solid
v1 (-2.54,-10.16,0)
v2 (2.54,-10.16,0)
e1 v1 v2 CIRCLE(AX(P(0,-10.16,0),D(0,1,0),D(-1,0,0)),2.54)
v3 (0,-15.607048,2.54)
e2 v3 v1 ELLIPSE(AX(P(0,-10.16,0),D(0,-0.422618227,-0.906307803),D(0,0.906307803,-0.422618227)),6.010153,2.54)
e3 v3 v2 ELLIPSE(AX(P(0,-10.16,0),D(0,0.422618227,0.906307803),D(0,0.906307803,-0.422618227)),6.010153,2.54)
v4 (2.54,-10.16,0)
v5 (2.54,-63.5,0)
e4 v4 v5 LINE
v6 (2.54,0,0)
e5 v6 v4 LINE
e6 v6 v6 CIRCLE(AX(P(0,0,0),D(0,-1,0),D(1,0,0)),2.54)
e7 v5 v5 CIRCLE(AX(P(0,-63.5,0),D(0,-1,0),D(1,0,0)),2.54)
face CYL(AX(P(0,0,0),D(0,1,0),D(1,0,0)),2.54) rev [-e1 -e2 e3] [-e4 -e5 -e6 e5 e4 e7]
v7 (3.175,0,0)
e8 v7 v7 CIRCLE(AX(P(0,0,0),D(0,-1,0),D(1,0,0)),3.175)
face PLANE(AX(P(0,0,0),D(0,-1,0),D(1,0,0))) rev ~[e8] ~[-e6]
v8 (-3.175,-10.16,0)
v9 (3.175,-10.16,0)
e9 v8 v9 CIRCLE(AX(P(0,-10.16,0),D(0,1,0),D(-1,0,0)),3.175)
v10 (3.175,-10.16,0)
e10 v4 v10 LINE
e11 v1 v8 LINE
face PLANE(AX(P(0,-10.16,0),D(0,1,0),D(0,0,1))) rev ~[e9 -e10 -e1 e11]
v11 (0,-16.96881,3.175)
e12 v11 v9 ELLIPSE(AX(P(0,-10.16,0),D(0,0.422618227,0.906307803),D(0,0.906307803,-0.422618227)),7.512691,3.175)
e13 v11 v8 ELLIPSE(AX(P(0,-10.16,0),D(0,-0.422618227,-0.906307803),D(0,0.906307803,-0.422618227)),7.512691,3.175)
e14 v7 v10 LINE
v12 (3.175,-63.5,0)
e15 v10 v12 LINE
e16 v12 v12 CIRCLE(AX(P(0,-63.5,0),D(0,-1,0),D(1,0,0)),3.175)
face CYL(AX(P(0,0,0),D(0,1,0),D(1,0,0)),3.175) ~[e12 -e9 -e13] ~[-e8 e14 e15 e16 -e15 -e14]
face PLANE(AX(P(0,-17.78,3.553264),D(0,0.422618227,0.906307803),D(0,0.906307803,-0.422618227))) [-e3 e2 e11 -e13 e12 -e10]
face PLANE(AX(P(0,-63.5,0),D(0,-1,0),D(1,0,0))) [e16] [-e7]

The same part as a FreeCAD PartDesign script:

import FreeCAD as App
import Part
import Sketcher
Q = App.Units.Quantity

doc = App.newDocument("Part")
body = doc.addObject("PartDesign::Body", "Body")

# Sketch on XZ plane
sketch1 = body.newObject("Sketcher::SketchObject", "Sketch")
sketch1.AttachmentSupport = (doc.getObject("XZ_Plane"), [""])
sketch1.MapMode = "FlatFace"
sketch1.addGeometry([
    Part.Circle(App.Vector(0, 0, 0), App.Vector(0, 0, 1), 3.2),
    Part.Circle(App.Vector(0, 0, 0), App.Vector(0, 0, 1), 2.5),
], False)
sketch1.addConstraint([
    Sketcher.Constraint("Coincident", 0, 3, -1, 1),
    Sketcher.Constraint("Coincident", 1, 3, -1, 1),
    Sketcher.Constraint("Diameter", 1, Q("0.2 in")),
    Sketcher.Constraint("Diameter", 0, Q("0.25 in")),
])
pad1 = body.newObject("PartDesign::Pad", "Pad")
pad1.Profile = sketch1
pad1.Length = Q("2.5 in")

# Sketch on YZ plane
sketch2 = body.newObject("Sketcher::SketchObject", "Sketch001")
sketch2.AttachmentSupport = (doc.getObject("YZ_Plane"), [""])
sketch2.MapMode = "FlatFace"
sketch2.addGeometry([
    Part.LineSegment(App.Vector(-17.8, 3.6, 0), App.Vector(-10.2, 0, 0)),
    Part.LineSegment(App.Vector(-10.2, 0, 0), App.Vector(-10.2, 3.6, 0)),
    Part.LineSegment(App.Vector(-10.2, 3.6, 0), App.Vector(-17.8, 3.6, 0)),
], False)
sketch2.addConstraint([
    Sketcher.Constraint("Coincident", 0, 2, 1, 1),
    Sketcher.Constraint("Coincident", 1, 2, 2, 1),
    Sketcher.Constraint("Coincident", 2, 2, 0, 1),
    Sketcher.Constraint("Vertical", 1),
    Sketcher.Constraint("Horizontal", 2),
    Sketcher.Constraint("PointOnObject", 0, 2, -1),
    Sketcher.Constraint("DistanceX", 2, 2, 2, 1, Q("0.3 in")),
    Sketcher.Constraint("Angle", 0, Q("-24.999998 deg")),
    Sketcher.Constraint("DistanceX", 0, 2, -1, 1, Q("0.4 in")),
])
pocket1 = body.newObject("PartDesign::Pocket", "Pocket")
pocket1.Profile = sketch2
pocket1.Type = "ThroughAll"
pocket1.Midplane = True

doc.recompute()
